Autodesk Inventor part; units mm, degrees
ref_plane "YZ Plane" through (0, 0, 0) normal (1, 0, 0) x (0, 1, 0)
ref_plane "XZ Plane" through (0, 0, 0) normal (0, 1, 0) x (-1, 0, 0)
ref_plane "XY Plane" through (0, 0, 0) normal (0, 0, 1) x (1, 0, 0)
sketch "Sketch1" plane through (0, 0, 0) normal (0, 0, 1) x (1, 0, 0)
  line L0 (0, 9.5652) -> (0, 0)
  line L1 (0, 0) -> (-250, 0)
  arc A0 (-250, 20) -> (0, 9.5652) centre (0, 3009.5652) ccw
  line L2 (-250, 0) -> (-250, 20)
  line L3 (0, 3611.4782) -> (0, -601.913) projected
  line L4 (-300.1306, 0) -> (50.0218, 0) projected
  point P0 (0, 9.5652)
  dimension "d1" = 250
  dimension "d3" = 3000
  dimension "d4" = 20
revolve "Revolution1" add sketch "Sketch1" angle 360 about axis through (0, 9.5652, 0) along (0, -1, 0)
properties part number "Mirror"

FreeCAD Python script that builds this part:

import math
import FreeCAD as App
import Part
import Sketcher
Q = App.Units.Quantity

doc = App.newDocument("Part")
params = doc.addObject("Spreadsheet::Sheet", "Params")
for row, (alias, value) in enumerate([
    ("sketch1_width", "250 mm"),
    ("sketch1_height", "20 mm"),
    ("revolution_angle", "360 deg"),
], start=1):
    params.set(f"A{row}", alias)
    params.set(f"B{row}", "=" + value)
    params.setAlias(f"B{row}", alias)

body = doc.addObject("PartDesign::Body", "Body")

# Sketch on XY plane
sketch1 = body.newObject("Sketcher::SketchObject", "Sketch")
sketch1.AttachmentSupport = (doc.getObject("XY_Plane"), [""])
sketch1.MapMode = "FlatFace"
sketch1.addGeometry([
    Part.LineSegment(App.Vector(0, 0, 0), App.Vector(0, 10, 0)),
    Part.ArcOfCircle(Part.Circle(App.Vector(0, 3010, 0), App.Vector(0, 0, 1), 3000), math.radians(-94.78), math.radians(-90)),
    Part.LineSegment(App.Vector(-250, 20, 0), App.Vector(-250, 0, 0)),
    Part.LineSegment(App.Vector(-250, 0, 0), App.Vector(0, 0, 0)),
], False)
sketch1.addConstraint([
    Sketcher.Constraint("Coincident", 0, 2, 1, 2),
    Sketcher.Constraint("Coincident", 1, 1, 2, 1),
    Sketcher.Constraint("Coincident", 2, 2, 3, 1),
    Sketcher.Constraint("Coincident", 3, 2, 0, 1),
    Sketcher.Constraint("Vertical", 0),
    Sketcher.Constraint("Vertical", 2),
    Sketcher.Constraint("Horizontal", 3),
    Sketcher.Constraint("Coincident", 3, 2, -1, 1),
    Sketcher.Constraint("DistanceX", 3, 1, 3, 2, Q("250 mm")),
    Sketcher.Constraint("DistanceY", 2, 2, 2, 1, Q("20 mm")),
    Sketcher.Constraint("Radius", 1, Q("2999.9919 mm")),
    Sketcher.Constraint("DistanceX", 2, 2, 1, 3, Q("249.9995 mm")),
])
sketch1.setExpression("Constraints[8]", "Params.sketch1_width")
sketch1.setExpression("Constraints[9]", "Params.sketch1_height")
revolution = body.newObject("PartDesign::Revolution", "Revolution")
revolution.Profile = sketch1
revolution.ReferenceAxis = (sketch1, ["V_Axis"])
revolution.setExpression("Angle", "Params.revolution_angle")

doc.recompute()
